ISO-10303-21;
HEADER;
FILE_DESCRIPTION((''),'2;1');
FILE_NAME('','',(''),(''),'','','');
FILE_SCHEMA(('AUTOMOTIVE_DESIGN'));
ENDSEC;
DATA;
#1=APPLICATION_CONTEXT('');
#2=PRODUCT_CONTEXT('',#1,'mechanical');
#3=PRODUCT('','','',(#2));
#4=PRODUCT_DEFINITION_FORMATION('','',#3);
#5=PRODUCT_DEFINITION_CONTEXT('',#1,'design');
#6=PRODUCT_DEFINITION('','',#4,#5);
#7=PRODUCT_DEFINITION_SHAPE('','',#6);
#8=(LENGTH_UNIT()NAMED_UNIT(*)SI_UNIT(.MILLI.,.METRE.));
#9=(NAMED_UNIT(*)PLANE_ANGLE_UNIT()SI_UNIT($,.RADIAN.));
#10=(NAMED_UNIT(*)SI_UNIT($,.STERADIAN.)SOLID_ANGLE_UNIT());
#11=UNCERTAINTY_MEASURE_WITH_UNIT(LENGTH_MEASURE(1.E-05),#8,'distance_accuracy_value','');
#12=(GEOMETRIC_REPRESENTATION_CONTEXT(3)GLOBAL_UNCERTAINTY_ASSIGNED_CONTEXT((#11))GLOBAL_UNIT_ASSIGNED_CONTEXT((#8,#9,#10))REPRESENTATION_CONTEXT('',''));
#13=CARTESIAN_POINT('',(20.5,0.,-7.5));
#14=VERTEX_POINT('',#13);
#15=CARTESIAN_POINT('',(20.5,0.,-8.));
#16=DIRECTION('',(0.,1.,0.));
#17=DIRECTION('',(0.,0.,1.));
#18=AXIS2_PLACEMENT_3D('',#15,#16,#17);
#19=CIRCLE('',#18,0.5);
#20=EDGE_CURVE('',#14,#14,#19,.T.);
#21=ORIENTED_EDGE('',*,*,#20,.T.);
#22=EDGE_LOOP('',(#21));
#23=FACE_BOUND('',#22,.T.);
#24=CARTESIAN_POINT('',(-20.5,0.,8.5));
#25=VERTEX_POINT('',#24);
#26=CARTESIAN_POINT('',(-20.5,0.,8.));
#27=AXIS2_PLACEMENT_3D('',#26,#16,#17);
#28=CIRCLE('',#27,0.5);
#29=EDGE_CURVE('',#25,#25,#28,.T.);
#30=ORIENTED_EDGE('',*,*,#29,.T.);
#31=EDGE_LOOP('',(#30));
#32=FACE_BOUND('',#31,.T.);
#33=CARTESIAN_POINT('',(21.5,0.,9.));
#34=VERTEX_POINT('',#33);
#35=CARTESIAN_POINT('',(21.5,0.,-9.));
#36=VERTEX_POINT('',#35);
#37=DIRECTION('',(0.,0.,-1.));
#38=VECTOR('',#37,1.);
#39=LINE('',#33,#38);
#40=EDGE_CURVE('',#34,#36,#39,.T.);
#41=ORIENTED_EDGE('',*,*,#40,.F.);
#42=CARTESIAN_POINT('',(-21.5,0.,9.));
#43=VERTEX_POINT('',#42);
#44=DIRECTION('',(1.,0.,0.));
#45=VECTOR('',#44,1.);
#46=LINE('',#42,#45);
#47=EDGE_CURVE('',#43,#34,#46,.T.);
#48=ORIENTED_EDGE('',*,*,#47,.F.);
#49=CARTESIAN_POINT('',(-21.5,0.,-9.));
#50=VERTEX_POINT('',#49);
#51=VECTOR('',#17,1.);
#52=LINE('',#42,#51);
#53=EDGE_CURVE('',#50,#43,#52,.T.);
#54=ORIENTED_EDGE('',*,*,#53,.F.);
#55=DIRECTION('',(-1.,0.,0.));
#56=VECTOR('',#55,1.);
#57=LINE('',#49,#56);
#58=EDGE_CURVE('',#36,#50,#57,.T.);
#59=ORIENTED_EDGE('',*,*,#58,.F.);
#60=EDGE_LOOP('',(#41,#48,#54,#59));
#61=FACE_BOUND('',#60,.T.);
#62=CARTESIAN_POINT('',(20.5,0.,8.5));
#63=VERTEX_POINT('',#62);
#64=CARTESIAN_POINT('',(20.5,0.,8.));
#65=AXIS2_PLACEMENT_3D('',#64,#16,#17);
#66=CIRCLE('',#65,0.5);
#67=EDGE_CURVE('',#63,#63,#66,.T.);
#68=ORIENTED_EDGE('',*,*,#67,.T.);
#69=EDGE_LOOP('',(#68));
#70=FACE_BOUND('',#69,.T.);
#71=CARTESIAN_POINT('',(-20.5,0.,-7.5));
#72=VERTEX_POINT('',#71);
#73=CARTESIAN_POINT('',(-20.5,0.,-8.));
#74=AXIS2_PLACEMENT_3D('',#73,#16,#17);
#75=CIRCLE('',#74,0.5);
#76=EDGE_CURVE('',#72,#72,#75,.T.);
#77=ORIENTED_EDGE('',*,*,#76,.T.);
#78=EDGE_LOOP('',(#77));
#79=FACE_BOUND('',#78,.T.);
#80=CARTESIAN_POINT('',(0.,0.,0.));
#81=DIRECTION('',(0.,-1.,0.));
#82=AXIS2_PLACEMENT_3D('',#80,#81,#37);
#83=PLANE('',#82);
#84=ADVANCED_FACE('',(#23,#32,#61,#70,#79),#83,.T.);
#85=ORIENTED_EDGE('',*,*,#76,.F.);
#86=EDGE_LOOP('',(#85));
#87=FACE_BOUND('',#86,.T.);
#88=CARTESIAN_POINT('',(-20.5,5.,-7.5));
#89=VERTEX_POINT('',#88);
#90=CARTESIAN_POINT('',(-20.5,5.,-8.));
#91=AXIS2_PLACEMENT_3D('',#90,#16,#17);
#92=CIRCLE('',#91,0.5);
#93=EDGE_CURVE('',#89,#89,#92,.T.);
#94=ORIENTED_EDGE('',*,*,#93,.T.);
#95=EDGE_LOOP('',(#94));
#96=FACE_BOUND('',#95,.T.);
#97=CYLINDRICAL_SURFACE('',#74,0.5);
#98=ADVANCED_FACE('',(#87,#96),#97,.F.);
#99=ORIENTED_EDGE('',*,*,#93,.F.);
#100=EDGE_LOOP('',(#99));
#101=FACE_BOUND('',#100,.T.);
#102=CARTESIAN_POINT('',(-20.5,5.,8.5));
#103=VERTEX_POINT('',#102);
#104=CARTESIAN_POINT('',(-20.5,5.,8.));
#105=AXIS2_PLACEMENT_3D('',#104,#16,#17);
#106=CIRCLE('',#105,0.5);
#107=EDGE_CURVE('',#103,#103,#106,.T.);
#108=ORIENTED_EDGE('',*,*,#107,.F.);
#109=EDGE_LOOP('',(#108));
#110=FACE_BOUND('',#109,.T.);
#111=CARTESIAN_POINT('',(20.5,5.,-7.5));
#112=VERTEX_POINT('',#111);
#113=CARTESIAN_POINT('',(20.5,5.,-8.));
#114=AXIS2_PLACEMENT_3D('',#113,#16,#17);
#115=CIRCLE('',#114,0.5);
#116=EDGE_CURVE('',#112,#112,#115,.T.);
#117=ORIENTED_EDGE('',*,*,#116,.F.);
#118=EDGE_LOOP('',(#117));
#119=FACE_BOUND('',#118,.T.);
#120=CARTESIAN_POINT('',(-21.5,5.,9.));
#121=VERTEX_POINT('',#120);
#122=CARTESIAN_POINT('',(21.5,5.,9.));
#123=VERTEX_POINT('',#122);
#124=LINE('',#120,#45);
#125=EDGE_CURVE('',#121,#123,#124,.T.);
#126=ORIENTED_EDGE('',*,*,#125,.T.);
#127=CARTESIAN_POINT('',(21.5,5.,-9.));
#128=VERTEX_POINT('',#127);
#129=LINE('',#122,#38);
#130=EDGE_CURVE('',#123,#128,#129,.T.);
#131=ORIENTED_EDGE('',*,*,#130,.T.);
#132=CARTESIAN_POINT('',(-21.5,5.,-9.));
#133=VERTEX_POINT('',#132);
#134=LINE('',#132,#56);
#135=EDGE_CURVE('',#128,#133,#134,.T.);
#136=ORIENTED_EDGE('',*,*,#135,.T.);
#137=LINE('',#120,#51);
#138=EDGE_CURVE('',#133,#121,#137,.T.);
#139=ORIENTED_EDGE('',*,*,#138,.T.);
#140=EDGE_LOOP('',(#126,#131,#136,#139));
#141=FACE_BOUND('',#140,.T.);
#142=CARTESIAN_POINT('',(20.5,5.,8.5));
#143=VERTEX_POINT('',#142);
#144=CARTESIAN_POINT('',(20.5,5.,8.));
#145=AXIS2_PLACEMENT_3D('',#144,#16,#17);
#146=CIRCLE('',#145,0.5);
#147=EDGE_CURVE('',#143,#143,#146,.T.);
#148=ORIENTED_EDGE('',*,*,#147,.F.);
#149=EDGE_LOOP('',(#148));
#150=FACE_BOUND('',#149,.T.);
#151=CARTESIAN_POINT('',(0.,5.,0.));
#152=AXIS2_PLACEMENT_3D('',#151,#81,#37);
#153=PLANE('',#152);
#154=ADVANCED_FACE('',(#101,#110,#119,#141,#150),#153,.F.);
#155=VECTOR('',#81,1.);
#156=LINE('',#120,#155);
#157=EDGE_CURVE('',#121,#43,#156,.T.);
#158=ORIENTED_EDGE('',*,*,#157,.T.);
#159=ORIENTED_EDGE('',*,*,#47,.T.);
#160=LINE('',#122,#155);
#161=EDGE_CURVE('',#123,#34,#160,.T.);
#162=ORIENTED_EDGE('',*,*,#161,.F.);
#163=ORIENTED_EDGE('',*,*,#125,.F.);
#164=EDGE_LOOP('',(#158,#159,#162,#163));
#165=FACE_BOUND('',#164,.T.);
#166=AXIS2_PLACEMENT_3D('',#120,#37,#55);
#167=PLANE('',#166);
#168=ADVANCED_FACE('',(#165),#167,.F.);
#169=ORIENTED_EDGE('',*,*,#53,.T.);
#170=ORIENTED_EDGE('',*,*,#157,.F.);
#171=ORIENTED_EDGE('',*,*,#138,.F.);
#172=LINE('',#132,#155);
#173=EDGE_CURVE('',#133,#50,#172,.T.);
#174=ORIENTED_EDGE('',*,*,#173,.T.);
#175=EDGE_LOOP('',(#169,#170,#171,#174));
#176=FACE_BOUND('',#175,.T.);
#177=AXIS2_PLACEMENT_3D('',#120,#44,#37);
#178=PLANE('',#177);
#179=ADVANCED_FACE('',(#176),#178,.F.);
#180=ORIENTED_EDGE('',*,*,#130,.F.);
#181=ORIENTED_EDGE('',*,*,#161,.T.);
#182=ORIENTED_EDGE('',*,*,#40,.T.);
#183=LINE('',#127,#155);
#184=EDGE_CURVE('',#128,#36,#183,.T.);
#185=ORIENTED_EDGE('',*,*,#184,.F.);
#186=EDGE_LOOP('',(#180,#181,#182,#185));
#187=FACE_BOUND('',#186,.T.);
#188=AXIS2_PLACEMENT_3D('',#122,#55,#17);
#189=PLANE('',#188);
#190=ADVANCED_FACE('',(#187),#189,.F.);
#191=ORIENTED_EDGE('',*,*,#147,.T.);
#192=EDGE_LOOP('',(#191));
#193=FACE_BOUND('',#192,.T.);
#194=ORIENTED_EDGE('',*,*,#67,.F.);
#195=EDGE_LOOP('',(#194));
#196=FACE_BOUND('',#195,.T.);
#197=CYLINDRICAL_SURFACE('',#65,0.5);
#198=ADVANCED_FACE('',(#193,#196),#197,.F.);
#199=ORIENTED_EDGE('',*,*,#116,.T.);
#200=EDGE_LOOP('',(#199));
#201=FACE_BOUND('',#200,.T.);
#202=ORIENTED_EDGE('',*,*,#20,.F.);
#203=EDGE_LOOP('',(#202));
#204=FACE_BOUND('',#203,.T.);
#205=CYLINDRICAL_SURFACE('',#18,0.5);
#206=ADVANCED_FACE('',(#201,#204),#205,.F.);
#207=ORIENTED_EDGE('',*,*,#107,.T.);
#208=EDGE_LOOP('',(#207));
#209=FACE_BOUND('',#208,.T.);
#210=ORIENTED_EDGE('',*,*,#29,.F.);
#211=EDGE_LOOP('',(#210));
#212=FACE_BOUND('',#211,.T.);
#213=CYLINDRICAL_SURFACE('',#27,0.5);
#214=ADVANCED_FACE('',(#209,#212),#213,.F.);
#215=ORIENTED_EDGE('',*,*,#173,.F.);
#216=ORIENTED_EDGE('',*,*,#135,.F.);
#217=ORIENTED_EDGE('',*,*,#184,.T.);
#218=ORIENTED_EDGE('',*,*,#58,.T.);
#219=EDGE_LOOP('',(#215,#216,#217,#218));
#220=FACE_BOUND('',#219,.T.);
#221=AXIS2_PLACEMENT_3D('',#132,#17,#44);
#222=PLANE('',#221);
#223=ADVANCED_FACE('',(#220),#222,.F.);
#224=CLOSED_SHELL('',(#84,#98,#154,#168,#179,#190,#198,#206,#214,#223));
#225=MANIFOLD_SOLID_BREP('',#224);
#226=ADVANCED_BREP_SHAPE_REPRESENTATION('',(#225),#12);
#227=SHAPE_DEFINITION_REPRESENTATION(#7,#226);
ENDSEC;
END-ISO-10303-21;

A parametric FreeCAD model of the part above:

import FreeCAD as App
import Part
import Sketcher

V = App.Vector


def add_polygon(sketch, points):
    """Adds a closed chain of lines whose ends are joined by coincident constraints."""
    first, n = sketch.GeometryCount, len(points)
    for a, b in zip(points, points[1:] + points[:1]):
        sketch.addGeometry(Part.LineSegment(App.Vector(*a, 0), App.Vector(*b, 0)), False)
    for i in range(n):
        sketch.addConstraint(Sketcher.Constraint("Coincident", first + i, 2, first + (i + 1) % n, 1))

doc = App.newDocument("Part")
params = doc.addObject("Spreadsheet::Sheet", "Params")
for row, (alias, value) in enumerate([
    ("sketch1_width", "43 mm"),
    ("sketch1_height", "18 mm"),
    ("pad1_length", "5 mm"),
    ("sketch2_diameter", "1 mm"),
    ("pocket1_length", "5 mm"),
], start=1):
    params.set(f"A{row}", alias)
    params.set(f"B{row}", "=" + value)
    params.setAlias(f"B{row}", alias)

body = doc.addObject("PartDesign::Body", "Body")

# Sketch on XZ plane
sketch1 = doc.addObject("Sketcher::SketchObject", "Sketch")
body.addObject(sketch1)
sketch1.AttachmentSupport = (doc.XZ_Plane, [""])
sketch1.MapMode = "FlatFace"
add_polygon(sketch1, [(-22, -9), (-22, 9), (22, 9), (22, -9)])  # lines 0-3
sketch1.addConstraint(Sketcher.Constraint("Vertical", 0))
sketch1.addConstraint(Sketcher.Constraint("Horizontal", 1))
sketch1.addConstraint(Sketcher.Constraint("Vertical", 2))
sketch1.addConstraint(Sketcher.Constraint("Horizontal", 3))
sketch1.addConstraint(Sketcher.Constraint("Symmetric", 0, 2, 2, 2, -1, 1))
sketch1.addConstraint(Sketcher.Constraint("DistanceX", 1, 1, 1, 2, 43.0))
sketch1.addConstraint(Sketcher.Constraint("DistanceY", 0, 1, 0, 2, 18.0))
sketch1.setExpression("Constraints[9]", "Params.sketch1_width")
sketch1.setExpression("Constraints[10]", "Params.sketch1_height")
pad1 = doc.addObject("PartDesign::Pad", "Pad")
body.addObject(pad1)
pad1.Profile = sketch1
pad1.setExpression("Length", "Params.pad1_length")
pad1.Reversed = True

# Sketch on XZ plane
sketch2 = doc.addObject("Sketcher::SketchObject", "Sketch001")
body.addObject(sketch2)
sketch2.AttachmentSupport = (doc.XZ_Plane, [""])
sketch2.MapMode = "FlatFace"
sketch2.AttachmentOffset = App.Placement(V(0, 0, -5), App.Rotation())
sketch2.addGeometry(Part.Circle(V(-20.5, -8, 0), V(0, 0, 1), 0.5), False)
sketch2.addGeometry(Part.Circle(V(20.5, -8, 0), V(0, 0, 1), 0.5), False)
sketch2.addGeometry(Part.Circle(V(20.5, 8, 0), V(0, 0, 1), 0.5), False)
sketch2.addGeometry(Part.Circle(V(-20.5, 8, 0), V(0, 0, 1), 0.5), False)
sketch2.addConstraint(Sketcher.Constraint("Equal", 0, 1))
sketch2.addConstraint(Sketcher.Constraint("Equal", 1, 2))
sketch2.addConstraint(Sketcher.Constraint("Equal", 2, 3))
sketch2.addConstraint(Sketcher.Constraint("Symmetric", 0, 3, 2, 3, -1, 1))
sketch2.addConstraint(Sketcher.Constraint("Symmetric", 1, 3, 3, 3, -1, 1))
sketch2.addConstraint(Sketcher.Constraint("Symmetric", 0, 3, 1, 3, -2))
sketch2.addConstraint(Sketcher.Constraint("Diameter", 0, 1.0))
sketch2.addConstraint(Sketcher.Constraint("DistanceY", 0, 3, -1, 1, 8.0))
sketch2.addConstraint(Sketcher.Constraint("DistanceX", 0, 3, 1, 3, 41.0))
sketch2.setExpression("Constraints[6]", "Params.sketch2_diameter")
pocket1 = doc.addObject("PartDesign::Pocket", "Pocket")
body.addObject(pocket1)
pocket1.Profile = sketch2
pocket1.setExpression("Length", "Params.pocket1_length")
pocket1.Reversed = True

doc.recompute()
